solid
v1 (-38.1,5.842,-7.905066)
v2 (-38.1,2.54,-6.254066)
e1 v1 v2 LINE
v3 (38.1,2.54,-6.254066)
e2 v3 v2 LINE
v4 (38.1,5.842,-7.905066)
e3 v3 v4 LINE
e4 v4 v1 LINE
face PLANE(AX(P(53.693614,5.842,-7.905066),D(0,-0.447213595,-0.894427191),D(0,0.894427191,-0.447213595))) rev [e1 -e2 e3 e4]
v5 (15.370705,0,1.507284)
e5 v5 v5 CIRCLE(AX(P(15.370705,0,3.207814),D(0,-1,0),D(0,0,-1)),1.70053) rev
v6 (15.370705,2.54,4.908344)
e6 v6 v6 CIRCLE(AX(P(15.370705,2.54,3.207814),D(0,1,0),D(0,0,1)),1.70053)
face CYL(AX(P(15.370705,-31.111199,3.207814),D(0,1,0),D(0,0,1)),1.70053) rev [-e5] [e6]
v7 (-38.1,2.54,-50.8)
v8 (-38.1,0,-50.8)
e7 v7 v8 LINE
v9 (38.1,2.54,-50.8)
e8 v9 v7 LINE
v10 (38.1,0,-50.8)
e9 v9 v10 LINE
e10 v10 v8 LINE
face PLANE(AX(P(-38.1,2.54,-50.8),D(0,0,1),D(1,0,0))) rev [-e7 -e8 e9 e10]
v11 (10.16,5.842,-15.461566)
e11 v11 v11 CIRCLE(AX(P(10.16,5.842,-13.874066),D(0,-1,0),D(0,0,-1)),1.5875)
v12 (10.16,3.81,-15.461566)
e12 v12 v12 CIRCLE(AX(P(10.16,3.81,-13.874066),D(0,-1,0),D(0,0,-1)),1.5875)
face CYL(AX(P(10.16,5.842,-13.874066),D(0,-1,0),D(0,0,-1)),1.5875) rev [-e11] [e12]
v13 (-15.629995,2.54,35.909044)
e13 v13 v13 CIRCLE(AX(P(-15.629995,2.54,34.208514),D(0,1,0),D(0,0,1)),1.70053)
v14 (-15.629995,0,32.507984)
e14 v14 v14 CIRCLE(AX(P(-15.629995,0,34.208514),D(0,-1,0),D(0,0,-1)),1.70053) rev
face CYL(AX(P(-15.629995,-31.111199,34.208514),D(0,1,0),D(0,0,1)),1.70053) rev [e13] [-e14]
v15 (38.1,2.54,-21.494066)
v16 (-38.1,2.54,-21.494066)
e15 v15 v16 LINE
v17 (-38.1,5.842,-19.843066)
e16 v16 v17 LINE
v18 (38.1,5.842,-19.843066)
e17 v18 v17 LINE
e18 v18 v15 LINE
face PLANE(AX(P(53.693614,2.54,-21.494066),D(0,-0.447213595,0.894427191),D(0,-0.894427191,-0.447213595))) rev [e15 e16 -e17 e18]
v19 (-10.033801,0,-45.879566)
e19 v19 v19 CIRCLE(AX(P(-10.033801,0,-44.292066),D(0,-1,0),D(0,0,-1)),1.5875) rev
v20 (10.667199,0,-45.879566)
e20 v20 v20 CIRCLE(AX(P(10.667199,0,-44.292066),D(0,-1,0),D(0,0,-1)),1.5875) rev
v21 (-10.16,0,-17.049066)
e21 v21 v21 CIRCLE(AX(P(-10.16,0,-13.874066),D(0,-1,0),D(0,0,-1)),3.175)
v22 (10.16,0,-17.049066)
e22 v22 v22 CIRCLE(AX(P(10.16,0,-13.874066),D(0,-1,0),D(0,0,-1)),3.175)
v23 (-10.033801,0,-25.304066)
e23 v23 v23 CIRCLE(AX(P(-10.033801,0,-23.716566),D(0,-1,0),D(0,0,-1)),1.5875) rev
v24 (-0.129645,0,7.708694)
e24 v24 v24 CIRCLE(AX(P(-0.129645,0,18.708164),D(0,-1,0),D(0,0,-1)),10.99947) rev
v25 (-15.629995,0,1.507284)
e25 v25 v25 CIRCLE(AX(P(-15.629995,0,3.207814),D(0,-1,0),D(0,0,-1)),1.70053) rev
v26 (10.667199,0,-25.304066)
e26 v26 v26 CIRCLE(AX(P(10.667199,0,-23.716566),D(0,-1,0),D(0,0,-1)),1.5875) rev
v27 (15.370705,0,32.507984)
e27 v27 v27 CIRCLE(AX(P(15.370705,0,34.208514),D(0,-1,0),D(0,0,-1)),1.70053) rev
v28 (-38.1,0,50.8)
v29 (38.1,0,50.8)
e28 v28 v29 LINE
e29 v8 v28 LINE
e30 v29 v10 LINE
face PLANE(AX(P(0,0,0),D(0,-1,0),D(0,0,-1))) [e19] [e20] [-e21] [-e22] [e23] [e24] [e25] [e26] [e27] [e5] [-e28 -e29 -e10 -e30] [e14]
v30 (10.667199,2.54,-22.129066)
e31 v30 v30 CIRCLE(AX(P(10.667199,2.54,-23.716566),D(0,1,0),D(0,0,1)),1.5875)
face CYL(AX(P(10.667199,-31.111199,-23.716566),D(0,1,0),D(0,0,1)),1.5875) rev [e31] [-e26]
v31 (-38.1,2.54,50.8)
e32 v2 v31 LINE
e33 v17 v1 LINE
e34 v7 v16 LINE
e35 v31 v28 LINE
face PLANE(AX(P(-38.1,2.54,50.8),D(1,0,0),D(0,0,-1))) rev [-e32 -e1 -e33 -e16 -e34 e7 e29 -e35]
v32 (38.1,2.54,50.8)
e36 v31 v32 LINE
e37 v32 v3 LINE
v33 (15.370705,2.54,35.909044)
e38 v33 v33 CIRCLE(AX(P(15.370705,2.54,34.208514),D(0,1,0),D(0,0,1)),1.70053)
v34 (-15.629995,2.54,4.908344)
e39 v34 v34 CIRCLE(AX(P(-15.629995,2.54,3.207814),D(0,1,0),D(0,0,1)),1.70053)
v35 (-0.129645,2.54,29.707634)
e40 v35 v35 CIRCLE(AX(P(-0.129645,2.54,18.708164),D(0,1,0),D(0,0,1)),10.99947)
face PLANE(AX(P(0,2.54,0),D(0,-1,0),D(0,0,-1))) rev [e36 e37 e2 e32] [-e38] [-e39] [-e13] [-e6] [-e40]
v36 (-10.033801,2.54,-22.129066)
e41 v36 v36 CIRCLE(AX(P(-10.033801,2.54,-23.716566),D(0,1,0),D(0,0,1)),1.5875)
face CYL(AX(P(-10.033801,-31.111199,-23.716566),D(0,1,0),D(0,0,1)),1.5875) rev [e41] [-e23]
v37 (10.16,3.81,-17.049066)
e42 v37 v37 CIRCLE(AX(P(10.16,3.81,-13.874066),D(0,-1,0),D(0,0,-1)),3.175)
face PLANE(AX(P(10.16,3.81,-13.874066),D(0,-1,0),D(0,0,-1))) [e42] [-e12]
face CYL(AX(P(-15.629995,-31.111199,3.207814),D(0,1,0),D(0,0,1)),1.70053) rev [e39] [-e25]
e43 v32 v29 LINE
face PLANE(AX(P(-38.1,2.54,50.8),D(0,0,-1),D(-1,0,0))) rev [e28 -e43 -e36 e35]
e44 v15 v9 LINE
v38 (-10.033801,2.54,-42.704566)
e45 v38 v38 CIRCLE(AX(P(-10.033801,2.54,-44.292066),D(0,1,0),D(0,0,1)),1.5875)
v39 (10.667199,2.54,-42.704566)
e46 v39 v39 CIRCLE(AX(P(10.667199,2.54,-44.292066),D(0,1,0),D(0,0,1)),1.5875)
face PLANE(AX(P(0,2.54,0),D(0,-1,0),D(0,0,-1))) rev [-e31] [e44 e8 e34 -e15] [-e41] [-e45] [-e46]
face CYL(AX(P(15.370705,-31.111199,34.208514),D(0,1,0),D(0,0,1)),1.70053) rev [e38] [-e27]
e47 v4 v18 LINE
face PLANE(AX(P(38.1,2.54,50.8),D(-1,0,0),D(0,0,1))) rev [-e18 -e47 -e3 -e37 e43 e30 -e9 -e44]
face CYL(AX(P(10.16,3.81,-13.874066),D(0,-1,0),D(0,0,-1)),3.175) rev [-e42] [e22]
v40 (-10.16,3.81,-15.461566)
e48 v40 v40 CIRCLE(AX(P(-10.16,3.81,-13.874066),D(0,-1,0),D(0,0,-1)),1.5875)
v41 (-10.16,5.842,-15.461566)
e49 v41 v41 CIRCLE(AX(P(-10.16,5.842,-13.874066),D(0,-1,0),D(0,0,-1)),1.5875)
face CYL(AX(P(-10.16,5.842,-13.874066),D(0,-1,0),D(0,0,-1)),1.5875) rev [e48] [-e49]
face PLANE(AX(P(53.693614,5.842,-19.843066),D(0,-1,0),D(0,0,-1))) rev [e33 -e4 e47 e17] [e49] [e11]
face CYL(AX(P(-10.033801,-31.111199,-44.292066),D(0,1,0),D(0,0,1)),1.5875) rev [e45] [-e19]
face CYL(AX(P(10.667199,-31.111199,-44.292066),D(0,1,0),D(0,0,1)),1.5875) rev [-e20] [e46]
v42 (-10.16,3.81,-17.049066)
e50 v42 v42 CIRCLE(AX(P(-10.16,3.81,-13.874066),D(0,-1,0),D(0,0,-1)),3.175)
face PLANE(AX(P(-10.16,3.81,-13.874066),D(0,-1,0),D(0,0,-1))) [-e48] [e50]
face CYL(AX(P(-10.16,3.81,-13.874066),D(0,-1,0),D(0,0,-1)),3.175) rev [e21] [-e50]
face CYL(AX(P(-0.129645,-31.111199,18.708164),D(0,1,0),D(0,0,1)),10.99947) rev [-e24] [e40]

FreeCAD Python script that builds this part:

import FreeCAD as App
import Part
import Sketcher
from FreeCAD import Vector
Q = App.Units.Quantity

doc = App.newDocument("Part")
params = doc.addObject("Spreadsheet::Sheet", "Params")
for row, (alias, value) in enumerate([
    ("sketch1_width", "3 in"),
    ("sketch1_height", "4 in"),
    ("pad1_length", "0.1 in"),
    ("sketch2_diameter", "0.125 in"),
    ("pocket1_length", "0.1 in"),
    ("sketch3_height", "0.6 in"),
    ("sketch3_height2", "0.47 in"),
    ("pad2_length", "3 in"),
    ("sketch4_diameter", "0.25 in"),
    ("pocket2_length", "0.15 in"),
    ("sketch5_diameter", "0.125 in"),
], start=1):
    params.set(f"A{row}", alias)
    params.set(f"B{row}", "=" + value)
    params.setAlias(f"B{row}", alias)

body = doc.addObject("PartDesign::Body", "Body")

sketch1 = body.newObject("Sketcher::SketchObject", "Sketch")
sketch1.AttachmentSupport = (doc.getObject("XZ_Plane"), [""])
sketch1.MapMode = "FlatFace"
sketch1.addGeometry([
    Part.LineSegment(Vector(-38, -51, 0), Vector(-38, 51, 0)),
    Part.LineSegment(Vector(-38, 51, 0), Vector(38, 51, 0)),
    Part.LineSegment(Vector(38, 51, 0), Vector(38, -51, 0)),
    Part.LineSegment(Vector(38, -51, 0), Vector(-38, -51, 0)),
], False)
sketch1.addConstraint([
    Sketcher.Constraint("Coincident", 0, 2, 1, 1),
    Sketcher.Constraint("Coincident", 1, 2, 2, 1),
    Sketcher.Constraint("Coincident", 2, 2, 3, 1),
    Sketcher.Constraint("Coincident", 3, 2, 0, 1),
    Sketcher.Constraint("Vertical", 0),
    Sketcher.Constraint("Horizontal", 1),
    Sketcher.Constraint("Vertical", 2),
    Sketcher.Constraint("Horizontal", 3),
    Sketcher.Constraint("Symmetric", 0, 2, 2, 2, -1, 1),
    Sketcher.Constraint("DistanceX", 1, 1, 1, 2, Q("3 in")),
    Sketcher.Constraint("DistanceY", 0, 1, 0, 2, Q("4 in")),
])
sketch1.setExpression("Constraints[9]", "Params.sketch1_width")
sketch1.setExpression("Constraints[10]", "Params.sketch1_height")
pad1 = body.newObject("PartDesign::Pad", "Pad")
pad1.Profile = sketch1
pad1.setExpression("Length", "Params.pad1_length")
pad1.Reversed = True

sketch2 = body.newObject("Sketcher::SketchObject", "Sketch001")
sketch2.AttachmentSupport = (doc.getObject("XZ_Plane"), [""])
sketch2.MapMode = "FlatFace"
sketch2.AttachmentOffset = App.Placement(Vector(0, 0, -0.1 * 25.4), App.Rotation())
sketch2.addGeometry([
    Part.Circle(Vector(-10, -44.3, 0), Vector(0, 0, 1), 1.6),
    Part.Circle(Vector(10.7, -44.3, 0), Vector(0, 0, 1), 1.6),
    Part.Circle(Vector(10.7, -23.7, 0), Vector(0, 0, 1), 1.6),
    Part.Circle(Vector(-10, -23.7, 0), Vector(0, 0, 1), 1.6),
    Part.Circle(Vector(-15.6, 3.2, 0), Vector(0, 0, 1), 1.7),
    Part.Circle(Vector(15.4, 3.2, 0), Vector(0, 0, 1), 1.7),
    Part.Circle(Vector(15.4, 34.2, 0), Vector(0, 0, 1), 1.7),
    Part.Circle(Vector(-15.6, 34.2, 0), Vector(0, 0, 1), 1.7),
    Part.Circle(Vector(-0.1, 18.7, 0), Vector(0, 0, 1), 11),
], False)
sketch2.addConstraint([
    Sketcher.Constraint("Equal", 0, 1),
    Sketcher.Constraint("Equal", 1, 2),
    Sketcher.Constraint("Equal", 2, 3),
    Sketcher.Constraint("Equal", 4, 5),
    Sketcher.Constraint("Equal", 5, 6),
    Sketcher.Constraint("Equal", 6, 7),
    Sketcher.Constraint("Horizontal", 0, 3, 1, 3),
    Sketcher.Constraint("Horizontal", 2, 3, 3, 3),
    Sketcher.Constraint("Horizontal", 4, 3, 5, 3),
    Sketcher.Constraint("Horizontal", 6, 3, 7, 3),
    Sketcher.Constraint("Vertical", 1, 3, 2, 3),
    Sketcher.Constraint("Vertical", 0, 3, 3, 3),
    Sketcher.Constraint("Vertical", 5, 3, 6, 3),
    Sketcher.Constraint("Vertical", 4, 3, 7, 3),
    Sketcher.Constraint("Diameter", 0, Q("0.125 in")),
    Sketcher.Constraint("Diameter", 4, Q("0.1339 in")),
    Sketcher.Constraint("Diameter", 8, Q("0.8661 in")),
    Sketcher.Constraint("DistanceX", 0, 3, 1, 3, Q("0.815 in")),
    Sketcher.Constraint("DistanceX", 4, 3, 5, 3, Q("1.2205 in")),
    Sketcher.Constraint("DistanceY", 5, 3, 6, 3, Q("1.2205 in")),
    Sketcher.Constraint("DistanceX", 0, 3, -1, 1, 10.033801),
    Sketcher.Constraint("DistanceY", 1, 3, 2, 3, 20.5755),
    Sketcher.Constraint("DistanceY", 3, 3, 4, 3, 26.92438),
    Sketcher.Constraint("DistanceX", 8, 3, 6, 3, 15.50035),
    Sketcher.Constraint("DistanceY", 8, 3, 6, 3, 15.50035),
    Sketcher.Constraint("DistanceY", 0, 3, -1, 1, 44.292066),
    Sketcher.Constraint("DistanceX", 4, 3, -1, 1, 15.629995),
])
sketch2.setExpression("Constraints[14]", "Params.sketch2_diameter")
pocket1 = body.newObject("PartDesign::Pocket", "Pocket")
pocket1.Profile = sketch2
pocket1.setExpression("Length", "Params.pocket1_length")
pocket1.Reversed = True

sketch3 = body.newObject("Sketcher::SketchObject", "Sketch002")
sketch3.AttachmentSupport = (doc.getObject("YZ_Plane"), [""])
sketch3.MapMode = "FlatFace"
sketch3.AttachmentOffset = App.Placement(Vector(0, 0, -1.5 * 25.4), App.Rotation())
sketch3.addGeometry([
    Part.LineSegment(Vector(2.5, -6.3, 0), Vector(2.5, -21.5, 0)),
    Part.LineSegment(Vector(2.5, -21.5, 0), Vector(5.8, -19.8, 0)),
    Part.LineSegment(Vector(5.8, -19.8, 0), Vector(5.8, -7.9, 0)),
    Part.LineSegment(Vector(5.8, -7.9, 0), Vector(2.5, -6.3, 0)),
], False)
sketch3.addConstraint([
    Sketcher.Constraint("Coincident", 0, 2, 1, 1),
    Sketcher.Constraint("Coincident", 1, 2, 2, 1),
    Sketcher.Constraint("Coincident", 2, 2, 3, 1),
    Sketcher.Constraint("Coincident", 3, 2, 0, 1),
    Sketcher.Constraint("Vertical", 0),
    Sketcher.Constraint("Vertical", 2),
    Sketcher.Constraint("Equal", 1, 3),
    Sketcher.Constraint("DistanceY", 0, 2, 0, 1, Q("0.6 in")),
    Sketcher.Constraint("DistanceY", 2, 1, 2, 2, Q("0.47 in")),
    Sketcher.Constraint("DistanceX", -1, 1, 0, 2, Q("0.1 in")),
    Sketcher.Constraint("DistanceX", -1, 1, 1, 2, Q("0.23 in")),
    Sketcher.Constraint("DistanceY", 0, 2, -1, 1, 21.494066),
])
sketch3.setExpression("Constraints[7]", "Params.sketch3_height")
sketch3.setExpression("Constraints[8]", "Params.sketch3_height2")
pad2 = body.newObject("PartDesign::Pad", "Pad001")
pad2.Profile = sketch3
pad2.setExpression("Length", "Params.pad2_length")

sketch4 = body.newObject("Sketcher::SketchObject", "Sketch003")
sketch4.AttachmentSupport = (doc.getObject("XZ_Plane"), [""])
sketch4.MapMode = "FlatFace"
sketch4.addGeometry([
    Part.Circle(Vector(-10.2, -13.9, 0), Vector(0, 0, 1), 3.2),
    Part.Circle(Vector(10.2, -13.9, 0), Vector(0, 0, 1), 3.2),
], False)
sketch4.addConstraint([
    Sketcher.Constraint("Equal", 0, 1),
    Sketcher.Constraint("Symmetric", 0, 3, 1, 3, -2),
    Sketcher.Constraint("Diameter", 0, Q("0.25 in")),
    Sketcher.Constraint("DistanceX", 0, 3, -1, 1, Q("0.4 in")),
    Sketcher.Constraint("DistanceY", 0, 3, -1, 1, 13.874066),
])
sketch4.setExpression("Constraints[2]", "Params.sketch4_diameter")
pocket2 = body.newObject("PartDesign::Pocket", "Pocket001")
pocket2.Profile = sketch4
pocket2.setExpression("Length", "Params.pocket2_length")

sketch5 = body.newObject("Sketcher::SketchObject", "Sketch004")
sketch5.AttachmentSupport = (doc.getObject("XZ_Plane"), [""])
sketch5.MapMode = "FlatFace"
sketch5.AttachmentOffset = App.Placement(Vector(0, 0, -0.15 * 25.4), App.Rotation())
sketch5.addGeometry([
    Part.Circle(Vector(-10.2, -13.9, 0), Vector(0, 0, 1), 1.6),
    Part.Circle(Vector(10.2, -13.9, 0), Vector(0, 0, 1), 1.6),
], False)
sketch5.addConstraint([
    Sketcher.Constraint("Equal", 0, 1),
    Sketcher.Constraint("Symmetric", 0, 3, 1, 3, -2),
    Sketcher.Constraint("Diameter", 0, Q("0.125 in")),
    Sketcher.Constraint("DistanceX", 0, 3, -1, 1, Q("0.4 in")),
    Sketcher.Constraint("DistanceY", 0, 3, -1, 1, 13.874066),
])
sketch5.setExpression("Constraints[2]", "Params.sketch5_diameter")
pocket3 = body.newObject("PartDesign::Pocket", "Pocket002")
pocket3.Profile = sketch5
pocket3.Type = "ThroughAll"

doc.recompute()
